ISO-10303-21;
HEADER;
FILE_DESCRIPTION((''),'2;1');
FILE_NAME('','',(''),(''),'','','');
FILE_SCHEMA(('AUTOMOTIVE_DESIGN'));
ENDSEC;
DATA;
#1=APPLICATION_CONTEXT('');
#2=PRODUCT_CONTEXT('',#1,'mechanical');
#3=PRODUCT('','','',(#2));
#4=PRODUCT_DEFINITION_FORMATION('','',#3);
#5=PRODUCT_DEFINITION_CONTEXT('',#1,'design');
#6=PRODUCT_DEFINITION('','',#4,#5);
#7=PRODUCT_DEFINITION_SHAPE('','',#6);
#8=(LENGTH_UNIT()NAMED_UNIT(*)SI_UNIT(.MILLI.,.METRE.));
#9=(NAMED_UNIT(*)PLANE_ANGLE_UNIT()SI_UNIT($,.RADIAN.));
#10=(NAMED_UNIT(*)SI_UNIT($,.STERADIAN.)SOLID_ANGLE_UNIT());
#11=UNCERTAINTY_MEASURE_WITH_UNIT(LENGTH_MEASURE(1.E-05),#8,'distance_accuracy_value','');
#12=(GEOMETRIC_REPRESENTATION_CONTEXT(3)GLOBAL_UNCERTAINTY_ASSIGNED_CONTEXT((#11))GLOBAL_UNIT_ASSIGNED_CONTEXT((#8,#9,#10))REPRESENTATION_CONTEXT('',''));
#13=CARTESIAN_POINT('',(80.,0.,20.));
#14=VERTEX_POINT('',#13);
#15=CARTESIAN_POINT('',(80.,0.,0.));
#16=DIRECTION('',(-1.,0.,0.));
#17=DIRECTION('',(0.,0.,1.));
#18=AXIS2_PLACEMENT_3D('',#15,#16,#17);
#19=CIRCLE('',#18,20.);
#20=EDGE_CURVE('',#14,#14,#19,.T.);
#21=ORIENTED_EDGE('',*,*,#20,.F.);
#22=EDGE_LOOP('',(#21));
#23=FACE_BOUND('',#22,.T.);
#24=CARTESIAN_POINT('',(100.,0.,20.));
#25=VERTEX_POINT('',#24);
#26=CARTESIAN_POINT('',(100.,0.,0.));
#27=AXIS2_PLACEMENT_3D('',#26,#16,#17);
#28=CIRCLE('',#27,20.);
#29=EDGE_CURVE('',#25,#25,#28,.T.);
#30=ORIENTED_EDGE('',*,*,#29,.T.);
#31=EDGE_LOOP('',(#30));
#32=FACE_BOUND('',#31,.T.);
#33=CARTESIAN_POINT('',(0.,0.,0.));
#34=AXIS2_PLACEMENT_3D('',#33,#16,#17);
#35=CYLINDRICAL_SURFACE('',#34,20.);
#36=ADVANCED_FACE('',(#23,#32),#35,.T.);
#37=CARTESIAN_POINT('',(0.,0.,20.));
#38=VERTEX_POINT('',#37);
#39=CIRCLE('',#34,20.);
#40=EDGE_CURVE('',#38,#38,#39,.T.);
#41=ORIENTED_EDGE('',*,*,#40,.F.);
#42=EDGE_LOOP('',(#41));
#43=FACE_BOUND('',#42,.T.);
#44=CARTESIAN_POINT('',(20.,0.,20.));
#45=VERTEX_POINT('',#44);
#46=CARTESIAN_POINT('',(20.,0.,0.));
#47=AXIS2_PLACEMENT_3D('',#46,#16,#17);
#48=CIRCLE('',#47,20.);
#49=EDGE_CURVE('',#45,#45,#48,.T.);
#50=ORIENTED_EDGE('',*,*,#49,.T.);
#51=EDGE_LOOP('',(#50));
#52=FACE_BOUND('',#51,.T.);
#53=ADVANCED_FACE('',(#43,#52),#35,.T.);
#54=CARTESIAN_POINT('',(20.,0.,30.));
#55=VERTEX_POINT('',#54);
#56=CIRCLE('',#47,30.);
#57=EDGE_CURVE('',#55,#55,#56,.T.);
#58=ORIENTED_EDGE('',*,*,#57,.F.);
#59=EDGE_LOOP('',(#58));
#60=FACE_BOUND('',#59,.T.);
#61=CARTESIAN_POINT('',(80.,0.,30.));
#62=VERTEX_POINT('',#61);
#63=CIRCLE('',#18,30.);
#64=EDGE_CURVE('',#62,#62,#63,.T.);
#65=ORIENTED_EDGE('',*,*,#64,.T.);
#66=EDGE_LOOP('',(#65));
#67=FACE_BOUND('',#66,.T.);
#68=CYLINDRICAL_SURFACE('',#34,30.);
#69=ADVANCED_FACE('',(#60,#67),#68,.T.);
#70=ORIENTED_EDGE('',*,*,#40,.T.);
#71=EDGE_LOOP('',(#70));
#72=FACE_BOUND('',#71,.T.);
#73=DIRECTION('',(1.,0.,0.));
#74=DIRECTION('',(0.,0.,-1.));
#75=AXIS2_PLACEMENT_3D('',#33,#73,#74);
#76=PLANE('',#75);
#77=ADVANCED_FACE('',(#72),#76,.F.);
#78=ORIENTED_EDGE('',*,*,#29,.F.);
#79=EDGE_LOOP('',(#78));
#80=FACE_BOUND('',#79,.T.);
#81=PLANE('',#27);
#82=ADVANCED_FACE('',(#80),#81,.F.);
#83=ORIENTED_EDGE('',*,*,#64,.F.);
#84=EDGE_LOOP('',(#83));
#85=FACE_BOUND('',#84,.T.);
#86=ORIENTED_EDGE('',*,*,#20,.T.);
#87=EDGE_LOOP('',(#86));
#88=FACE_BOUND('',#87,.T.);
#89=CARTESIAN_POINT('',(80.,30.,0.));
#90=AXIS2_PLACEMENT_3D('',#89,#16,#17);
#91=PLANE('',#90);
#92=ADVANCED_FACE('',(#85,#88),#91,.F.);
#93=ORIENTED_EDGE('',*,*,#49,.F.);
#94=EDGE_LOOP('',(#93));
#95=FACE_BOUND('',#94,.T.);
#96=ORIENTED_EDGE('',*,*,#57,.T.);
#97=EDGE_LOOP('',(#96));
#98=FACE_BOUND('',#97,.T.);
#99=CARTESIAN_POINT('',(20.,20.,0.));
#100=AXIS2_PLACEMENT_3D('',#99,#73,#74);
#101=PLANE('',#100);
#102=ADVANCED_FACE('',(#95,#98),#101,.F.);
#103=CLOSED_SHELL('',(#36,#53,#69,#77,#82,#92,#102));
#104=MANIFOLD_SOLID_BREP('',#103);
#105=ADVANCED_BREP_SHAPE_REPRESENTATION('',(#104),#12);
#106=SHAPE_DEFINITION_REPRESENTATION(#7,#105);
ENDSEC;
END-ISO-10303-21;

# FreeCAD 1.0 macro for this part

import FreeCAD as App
import Part
import Sketcher


def add_polygon(sketch, points):
    """Adds a closed chain of lines whose ends are joined by coincident constraints."""
    first, n = sketch.GeometryCount, len(points)
    for a, b in zip(points, points[1:] + points[:1]):
        sketch.addGeometry(Part.LineSegment(App.Vector(*a, 0), App.Vector(*b, 0)), False)
    for i in range(n):
        sketch.addConstraint(Sketcher.Constraint("Coincident", first + i, 2, first + (i + 1) % n, 1))

doc = App.newDocument("Part")
body = doc.addObject("PartDesign::Body", "Body")

# Sketch on XY plane
sketch1 = body.newObject("Sketcher::SketchObject", "Sketch")
sketch1.AttachmentSupport = (doc.getObject("XY_Plane"), [""])
sketch1.MapMode = "FlatFace"
add_polygon(sketch1, [(0, 0), (100, 0), (100, 20), (80, 20), (80, 30), (20, 30), (20, 20), (0, 20)])  # lines 0-7
sketch1.addConstraint([
    Sketcher.Constraint("Horizontal", 0),
    Sketcher.Constraint("Vertical", 1),
    Sketcher.Constraint("Horizontal", 2),
    Sketcher.Constraint("Vertical", 3),
    Sketcher.Constraint("Horizontal", 4),
    Sketcher.Constraint("Vertical", 5),
    Sketcher.Constraint("Horizontal", 6),
    Sketcher.Constraint("Vertical", 7),
    Sketcher.Constraint("Coincident", 7, 2, -1, 1),
    Sketcher.Constraint("Horizontal", 2, 2, 5, 2),
    Sketcher.Constraint("Equal", 2, 6),
    Sketcher.Constraint("Equal", 6, 1),
    Sketcher.Constraint("DistanceX", 0, 1, 0, 2, 100.0),
    Sketcher.Constraint("DistanceX", 2, 2, 2, 1, 20.0),
    Sketcher.Constraint("DistanceY", 3, 1, 3, 2, 10.0),
])
revolution = body.newObject("PartDesign::Revolution", "Revolution")
revolution.Profile = sketch1
revolution.ReferenceAxis = (sketch1, ["H_Axis"])
revolution.Angle = 360

doc.recompute()
